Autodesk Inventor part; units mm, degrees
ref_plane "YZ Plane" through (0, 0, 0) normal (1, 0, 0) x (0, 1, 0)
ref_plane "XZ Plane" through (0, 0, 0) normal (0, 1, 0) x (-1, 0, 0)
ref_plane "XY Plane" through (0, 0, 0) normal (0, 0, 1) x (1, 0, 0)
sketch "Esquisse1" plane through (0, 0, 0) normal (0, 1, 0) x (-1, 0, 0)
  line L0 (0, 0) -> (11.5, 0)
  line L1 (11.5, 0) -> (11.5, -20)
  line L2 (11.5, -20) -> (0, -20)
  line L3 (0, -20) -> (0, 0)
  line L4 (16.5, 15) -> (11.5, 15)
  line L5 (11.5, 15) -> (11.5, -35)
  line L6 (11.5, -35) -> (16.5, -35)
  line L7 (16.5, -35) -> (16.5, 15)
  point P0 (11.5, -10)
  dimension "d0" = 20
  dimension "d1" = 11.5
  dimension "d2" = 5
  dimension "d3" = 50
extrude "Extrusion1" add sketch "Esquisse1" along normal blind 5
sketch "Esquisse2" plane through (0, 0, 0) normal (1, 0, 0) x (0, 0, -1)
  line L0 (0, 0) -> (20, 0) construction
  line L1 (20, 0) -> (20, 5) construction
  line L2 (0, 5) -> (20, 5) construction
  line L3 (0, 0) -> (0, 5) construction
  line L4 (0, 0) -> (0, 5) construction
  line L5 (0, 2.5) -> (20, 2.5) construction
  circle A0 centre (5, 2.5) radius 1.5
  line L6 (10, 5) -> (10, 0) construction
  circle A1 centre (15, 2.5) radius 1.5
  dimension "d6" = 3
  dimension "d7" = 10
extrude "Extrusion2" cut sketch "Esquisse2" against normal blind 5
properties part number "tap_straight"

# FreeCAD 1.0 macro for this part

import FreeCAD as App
import Part
import Sketcher

V = App.Vector


def add_polygon(sketch, points):
    """Adds a closed chain of lines whose ends are joined by coincident constraints."""
    first, n = sketch.GeometryCount, len(points)
    for a, b in zip(points, points[1:] + points[:1]):
        sketch.addGeometry(Part.LineSegment(App.Vector(*a, 0), App.Vector(*b, 0)), False)
    for i in range(n):
        sketch.addConstraint(Sketcher.Constraint("Coincident", first + i, 2, first + (i + 1) % n, 1))

doc = App.newDocument("Part")
body = doc.addObject("PartDesign::Body", "Body")

# Sketch on XZ plane
sketch1 = doc.addObject("Sketcher::SketchObject", "Sketch")
body.addObject(sketch1)
sketch1.AttachmentSupport = (doc.XZ_Plane, [""])
sketch1.MapMode = "FlatFace"
add_polygon(sketch1, [(-12, 0), (0, 0), (0, -20), (-12, -20), (-12, -35), (-16, -35), (-16, 15), (-12, 15)])  # lines 0-7
sketch1.addConstraint([
    Sketcher.Constraint("Horizontal", 0),
    Sketcher.Constraint("Vertical", 1),
    Sketcher.Constraint("Horizontal", 2),
    Sketcher.Constraint("Vertical", 3),
    Sketcher.Constraint("Horizontal", 4),
    Sketcher.Constraint("Vertical", 5),
    Sketcher.Constraint("Horizontal", 6),
    Sketcher.Constraint("Vertical", 7),
    Sketcher.Constraint("Coincident", 0, 2, -1, 1),
    Sketcher.Constraint("Vertical", 3, 2, 6, 2),
    Sketcher.Constraint("Equal", 3, 7),
    Sketcher.Constraint("DistanceX", 4, 2, 4, 1, 5.0),
    Sketcher.Constraint("DistanceY", 1, 2, 1, 1, 20.0),
    Sketcher.Constraint("DistanceY", 5, 1, 5, 2, 50.0),
    Sketcher.Constraint("DistanceX", 0, 1, 0, 2, 11.5),
])
pad1 = doc.addObject("PartDesign::Pad", "Pad")
body.addObject(pad1)
pad1.Profile = sketch1
pad1.Length = 5
pad1.Reversed = True

# Sketch on YZ plane
sketch2 = doc.addObject("Sketcher::SketchObject", "Sketch001")
body.addObject(sketch2)
sketch2.AttachmentSupport = (doc.YZ_Plane, [""])
sketch2.MapMode = "FlatFace"
sketch2.addGeometry([
    Part.Circle(V(2.5, -5, 0), V(0, 0, 1), 1.5),
    Part.Circle(V(2.5, -15, 0), V(0, 0, 1), 1.5),
], False)
sketch2.addConstraint([
    Sketcher.Constraint("Equal", 0, 1),
    Sketcher.Constraint("Vertical", 0, 3, 1, 3),
    Sketcher.Constraint("Diameter", 0, 3.0),
    Sketcher.Constraint("DistanceY", 1, 3, 0, 3, 10.0),
    Sketcher.Constraint("DistanceY", 0, 3, -1, 1, 5.0),
    Sketcher.Constraint("DistanceX", -1, 1, 0, 3, 2.5),
])
pocket1 = doc.addObject("PartDesign::Pocket", "Pocket")
body.addObject(pocket1)
pocket1.Profile = sketch2
pocket1.Length = 5

doc.recompute()
